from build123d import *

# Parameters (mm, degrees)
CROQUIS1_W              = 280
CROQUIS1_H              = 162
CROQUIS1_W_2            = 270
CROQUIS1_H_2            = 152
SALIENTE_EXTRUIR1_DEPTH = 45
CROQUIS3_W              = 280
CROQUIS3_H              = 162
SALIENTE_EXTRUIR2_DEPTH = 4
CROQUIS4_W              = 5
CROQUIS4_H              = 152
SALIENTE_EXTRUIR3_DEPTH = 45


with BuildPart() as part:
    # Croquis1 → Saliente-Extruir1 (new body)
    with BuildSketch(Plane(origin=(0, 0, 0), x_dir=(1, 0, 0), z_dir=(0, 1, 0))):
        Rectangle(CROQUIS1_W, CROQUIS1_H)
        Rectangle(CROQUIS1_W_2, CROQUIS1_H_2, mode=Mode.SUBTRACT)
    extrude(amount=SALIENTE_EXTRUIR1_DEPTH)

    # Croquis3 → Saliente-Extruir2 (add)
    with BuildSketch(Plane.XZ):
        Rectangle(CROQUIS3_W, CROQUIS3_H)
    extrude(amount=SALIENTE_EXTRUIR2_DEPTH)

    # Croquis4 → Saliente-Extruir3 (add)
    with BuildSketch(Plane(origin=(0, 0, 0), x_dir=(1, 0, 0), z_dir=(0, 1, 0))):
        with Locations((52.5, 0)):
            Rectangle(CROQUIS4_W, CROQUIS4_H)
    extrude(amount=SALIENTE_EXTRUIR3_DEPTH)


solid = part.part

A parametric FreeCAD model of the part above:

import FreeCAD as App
import Part
import Sketcher

doc = App.newDocument("Part")
body = doc.addObject("PartDesign::Body", "Body")

# Sketch on XZ plane
sketch1 = body.newObject("Sketcher::SketchObject", "Sketch")
sketch1.AttachmentSupport = (doc.getObject("XZ_Plane"), [""])
sketch1.MapMode = "FlatFace"
sketch1.addGeometry([
    Part.LineSegment(App.Vector(-140, -81, 0), App.Vector(-140, 81, 0)),  # 0
    Part.LineSegment(App.Vector(-140, 81, 0), App.Vector(140, 81, 0)),  # 1
    Part.LineSegment(App.Vector(140, 81, 0), App.Vector(140, -81, 0)),  # 2
    Part.LineSegment(App.Vector(140, -81, 0), App.Vector(-140, -81, 0)),  # 3
    Part.LineSegment(App.Vector(135, 76, 0), App.Vector(-135, 76, 0)),  # 4
    Part.LineSegment(App.Vector(-135, 76, 0), App.Vector(-135, -76, 0)),  # 5
    Part.LineSegment(App.Vector(-135, -76, 0), App.Vector(135, -76, 0)),  # 6
    Part.LineSegment(App.Vector(135, -76, 0), App.Vector(135, 76, 0)),  # 7
], False)
sketch1.addConstraint([
    Sketcher.Constraint("Coincident", 0, 2, 1, 1),
    Sketcher.Constraint("Coincident", 1, 2, 2, 1),
    Sketcher.Constraint("Coincident", 2, 2, 3, 1),
    Sketcher.Constraint("Coincident", 3, 2, 0, 1),
    Sketcher.Constraint("Coincident", 4, 2, 5, 1),
    Sketcher.Constraint("Coincident", 5, 2, 6, 1),
    Sketcher.Constraint("Coincident", 6, 2, 7, 1),
    Sketcher.Constraint("Coincident", 7, 2, 4, 1),
    Sketcher.Constraint("Vertical", 0),
    Sketcher.Constraint("Horizontal", 1),
    Sketcher.Constraint("Vertical", 2),
    Sketcher.Constraint("Horizontal", 3),
    Sketcher.Constraint("Horizontal", 4),
    Sketcher.Constraint("Vertical", 5),
    Sketcher.Constraint("Horizontal", 6),
    Sketcher.Constraint("Vertical", 7),
    Sketcher.Constraint("Symmetric", 0, 2, 2, 2, -1, 1),
    Sketcher.Constraint("Symmetric", 4, 2, 6, 2, -1, 1),
    Sketcher.Constraint("DistanceX", 1, 1, 1, 2, 280.0),
    Sketcher.Constraint("DistanceX", 4, 2, 4, 1, 270.0),
    Sketcher.Constraint("DistanceY", 0, 1, 0, 2, 162.0),
    Sketcher.Constraint("DistanceY", 5, 2, 5, 1, 152.0),
])
pad1 = body.newObject("PartDesign::Pad", "Pad")
pad1.Profile = sketch1
pad1.Length = 45
pad1.Reversed = True

# Sketch on XZ plane
sketch2 = body.newObject("Sketcher::SketchObject", "Sketch001")
sketch2.AttachmentSupport = (doc.getObject("XZ_Plane"), [""])
sketch2.MapMode = "FlatFace"
sketch2.addGeometry([
    Part.LineSegment(App.Vector(-140, 81, 0), App.Vector(-140, -81, 0)),
    Part.LineSegment(App.Vector(-140, -81, 0), App.Vector(140, -81, 0)),
    Part.LineSegment(App.Vector(140, -81, 0), App.Vector(140, 81, 0)),
    Part.LineSegment(App.Vector(140, 81, 0), App.Vector(-140, 81, 0)),
], False)
sketch2.addConstraint([
    Sketcher.Constraint("Coincident", 0, 2, 1, 1),
    Sketcher.Constraint("Coincident", 1, 2, 2, 1),
    Sketcher.Constraint("Coincident", 2, 2, 3, 1),
    Sketcher.Constraint("Coincident", 3, 2, 0, 1),
    Sketcher.Constraint("Vertical", 0),
    Sketcher.Constraint("Horizontal", 1),
    Sketcher.Constraint("Vertical", 2),
    Sketcher.Constraint("Horizontal", 3),
    Sketcher.Constraint("Symmetric", 0, 2, 2, 2, -1, 1),
    Sketcher.Constraint("DistanceX", 1, 1, 1, 2, 280.0),
    Sketcher.Constraint("DistanceY", 0, 2, 0, 1, 162.0),
])
pad2 = body.newObject("PartDesign::Pad", "Pad001")
pad2.Profile = sketch2
pad2.Length = 4

# Sketch on XZ plane
sketch3 = body.newObject("Sketcher::SketchObject", "Sketch002")
sketch3.AttachmentSupport = (doc.getObject("XZ_Plane"), [""])
sketch3.MapMode = "FlatFace"
sketch3.addGeometry([
    Part.LineSegment(App.Vector(50, -76, 0), App.Vector(50, 76, 0)),
    Part.LineSegment(App.Vector(50, 76, 0), App.Vector(55, 76, 0)),
    Part.LineSegment(App.Vector(55, 76, 0), App.Vector(55, -76, 0)),
    Part.LineSegment(App.Vector(55, -76, 0), App.Vector(50, -76, 0)),
], False)
sketch3.addConstraint([
    Sketcher.Constraint("Coincident", 0, 2, 1, 1),
    Sketcher.Constraint("Coincident", 1, 2, 2, 1),
    Sketcher.Constraint("Coincident", 2, 2, 3, 1),
    Sketcher.Constraint("Coincident", 3, 2, 0, 1),
    Sketcher.Constraint("Vertical", 0),
    Sketcher.Constraint("Horizontal", 1),
    Sketcher.Constraint("Vertical", 2),
    Sketcher.Constraint("Horizontal", 3),
    Sketcher.Constraint("DistanceX", 1, 1, 1, 2, 5.0),
    Sketcher.Constraint("DistanceY", 0, 1, 0, 2, 152.0),
    Sketcher.Constraint("DistanceX", -1, 1, 0, 2, 50.0),
    Sketcher.Constraint("DistanceY", -1, 1, 0, 2, 76.0),
])
pad3 = body.newObject("PartDesign::Pad", "Pad002")
pad3.Profile = sketch3
pad3.Length = 45
pad3.Reversed = True

doc.recompute()
